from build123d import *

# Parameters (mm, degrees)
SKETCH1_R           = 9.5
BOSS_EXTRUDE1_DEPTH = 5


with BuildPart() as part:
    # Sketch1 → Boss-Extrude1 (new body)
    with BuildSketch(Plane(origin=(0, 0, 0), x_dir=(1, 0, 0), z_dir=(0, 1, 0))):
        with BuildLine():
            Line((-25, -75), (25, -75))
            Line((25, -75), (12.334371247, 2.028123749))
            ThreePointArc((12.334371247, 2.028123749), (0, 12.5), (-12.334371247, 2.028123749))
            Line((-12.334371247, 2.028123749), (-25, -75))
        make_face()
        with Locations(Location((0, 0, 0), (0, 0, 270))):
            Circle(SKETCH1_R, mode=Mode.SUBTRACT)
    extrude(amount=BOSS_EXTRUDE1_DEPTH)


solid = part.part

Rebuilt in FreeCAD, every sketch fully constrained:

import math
import FreeCAD as App
import Part
import Sketcher

doc = App.newDocument("Part")
body = doc.addObject("PartDesign::Body", "Body")

# Sketch on XZ plane
sketch1 = body.newObject("Sketcher::SketchObject", "Sketch")
sketch1.AttachmentSupport = (doc.getObject("XZ_Plane"), [""])
sketch1.MapMode = "FlatFace"
sketch1.addGeometry([
    Part.LineSegment(App.Vector(-25, 75, 0), App.Vector(25, 75, 0)),  # 0
    Part.LineSegment(App.Vector(25, 75, 0), App.Vector(12, -2, 0)),  # 1
    Part.ArcOfCircle(Part.Circle(App.Vector(0, 0, 0), App.Vector(0, 0, 1), 12), math.radians(-171), math.radians(-9)),  # 2
    Part.LineSegment(App.Vector(-12, -2, 0), App.Vector(-25, 75, 0)),  # 3
    Part.Circle(App.Vector(0, 0, 0), App.Vector(0, 0, 1), 10),  # 4
], False)
sketch1.addConstraint([
    Sketcher.Constraint("Coincident", 0, 2, 1, 1),
    Sketcher.Constraint("Tangent", 1, 2, 2, 2),
    Sketcher.Constraint("Tangent", 2, 1, 3, 1),
    Sketcher.Constraint("Coincident", 3, 2, 0, 1),
    Sketcher.Constraint("Horizontal", 0),
    Sketcher.Constraint("Coincident", 2, 3, -1, 1),
    Sketcher.Constraint("Coincident", 4, 3, -1, 1),
    Sketcher.Constraint("Horizontal", 1, 2, 2, 1),
    Sketcher.Constraint("Diameter", 4, 19.0),
    Sketcher.Constraint("Radius", 2, 12.5),
    Sketcher.Constraint("DistanceX", 0, 1, 0, 2, 50.0),
    Sketcher.Constraint("DistanceY", -1, 1, 0, 2, 75.0),
])
pad1 = body.newObject("PartDesign::Pad", "Pad")
pad1.Profile = sketch1
pad1.Length = 5
pad1.Reversed = True

doc.recompute()
